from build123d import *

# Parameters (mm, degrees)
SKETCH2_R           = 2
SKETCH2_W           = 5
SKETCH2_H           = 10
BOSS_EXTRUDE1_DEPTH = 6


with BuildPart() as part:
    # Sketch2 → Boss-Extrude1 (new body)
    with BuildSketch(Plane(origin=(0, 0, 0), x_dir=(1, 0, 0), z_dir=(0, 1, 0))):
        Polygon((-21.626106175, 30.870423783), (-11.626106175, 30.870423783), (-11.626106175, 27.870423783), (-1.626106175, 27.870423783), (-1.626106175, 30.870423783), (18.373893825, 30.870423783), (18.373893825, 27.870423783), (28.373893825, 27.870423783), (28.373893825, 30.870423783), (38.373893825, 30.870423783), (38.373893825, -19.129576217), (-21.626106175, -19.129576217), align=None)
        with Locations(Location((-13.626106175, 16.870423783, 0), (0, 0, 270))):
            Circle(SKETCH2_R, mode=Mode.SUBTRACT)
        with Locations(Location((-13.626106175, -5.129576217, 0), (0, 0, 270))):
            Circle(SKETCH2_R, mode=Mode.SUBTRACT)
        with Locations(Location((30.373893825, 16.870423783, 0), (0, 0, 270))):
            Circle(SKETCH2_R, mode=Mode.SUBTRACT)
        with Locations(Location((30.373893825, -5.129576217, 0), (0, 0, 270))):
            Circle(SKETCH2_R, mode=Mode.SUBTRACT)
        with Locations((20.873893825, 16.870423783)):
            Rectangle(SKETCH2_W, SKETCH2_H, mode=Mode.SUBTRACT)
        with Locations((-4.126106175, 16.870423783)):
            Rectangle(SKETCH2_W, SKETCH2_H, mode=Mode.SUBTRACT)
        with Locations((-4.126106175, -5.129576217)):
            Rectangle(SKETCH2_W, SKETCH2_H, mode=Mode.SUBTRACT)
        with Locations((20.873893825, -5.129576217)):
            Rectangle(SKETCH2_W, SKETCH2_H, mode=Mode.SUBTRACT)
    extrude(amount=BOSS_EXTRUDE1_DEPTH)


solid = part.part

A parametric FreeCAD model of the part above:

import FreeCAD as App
import Part
import Sketcher

doc = App.newDocument("Part")
body = doc.addObject("PartDesign::Body", "Body")

# Sketch on XZ plane
sketch1 = body.newObject("Sketcher::SketchObject", "Sketch")
sketch1.AttachmentSupport = (doc.getObject("XZ_Plane"), [""])
sketch1.MapMode = "FlatFace"
sketch1.addGeometry([
    Part.LineSegment(App.Vector(-11.6, -30.9, 0), App.Vector(-21.6, -30.9, 0)),  # 0
    Part.LineSegment(App.Vector(-21.6, -30.9, 0), App.Vector(-21.6, 19.1, 0)),  # 1
    Part.LineSegment(App.Vector(-21.6, 19.1, 0), App.Vector(38.4, 19.1, 0)),  # 2
    Part.LineSegment(App.Vector(38.4, 19.1, 0), App.Vector(38.4, -30.9, 0)),  # 3
    Part.LineSegment(App.Vector(38.4, -30.9, 0), App.Vector(28.4, -30.9, 0)),  # 4
    Part.LineSegment(App.Vector(28.4, -30.9, 0), App.Vector(28.4, -27.9, 0)),  # 5
    Part.LineSegment(App.Vector(28.4, -27.9, 0), App.Vector(18.4, -27.9, 0)),  # 6
    Part.LineSegment(App.Vector(18.4, -27.9, 0), App.Vector(18.4, -30.9, 0)),  # 7
    Part.LineSegment(App.Vector(18.4, -30.9, 0), App.Vector(-1.6, -30.9, 0)),  # 8
    Part.LineSegment(App.Vector(-1.6, -30.9, 0), App.Vector(-1.6, -27.9, 0)),  # 9
    Part.LineSegment(App.Vector(-1.6, -27.9, 0), App.Vector(-11.6, -27.9, 0)),  # 10
    Part.LineSegment(App.Vector(-11.6, -27.9, 0), App.Vector(-11.6, -30.9, 0)),  # 11
    Part.Circle(App.Vector(30.4, 5.1, 0), App.Vector(0, 0, 1), 2),  # 12
    Part.LineSegment(App.Vector(18.4, 10.1, 0), App.Vector(18.4, 0.1, 0)),  # 13
    Part.LineSegment(App.Vector(18.4, 0.1, 0), App.Vector(23.4, 0.1, 0)),  # 14
    Part.LineSegment(App.Vector(23.4, 0.1, 0), App.Vector(23.4, 10.1, 0)),  # 15
    Part.LineSegment(App.Vector(23.4, 10.1, 0), App.Vector(18.4, 10.1, 0)),  # 16
    Part.LineSegment(App.Vector(-6.6, 10.1, 0), App.Vector(-6.6, 0.1, 0)),  # 17
    Part.LineSegment(App.Vector(-6.6, 0.1, 0), App.Vector(-1.6, 0.1, 0)),  # 18
    Part.LineSegment(App.Vector(-1.6, 0.1, 0), App.Vector(-1.6, 10.1, 0)),  # 19
    Part.LineSegment(App.Vector(-1.6, 10.1, 0), App.Vector(-6.6, 10.1, 0)),  # 20
    Part.Circle(App.Vector(-13.6, 5.1, 0), App.Vector(0, 0, 1), 2),  # 21
    Part.Circle(App.Vector(30.4, -16.9, 0), App.Vector(0, 0, 1), 2),  # 22
    Part.LineSegment(App.Vector(18.4, -11.9, 0), App.Vector(18.4, -21.9, 0)),  # 23
    Part.LineSegment(App.Vector(18.4, -21.9, 0), App.Vector(23.4, -21.9, 0)),  # 24
    Part.LineSegment(App.Vector(23.4, -21.9, 0), App.Vector(23.4, -11.9, 0)),  # 25
    Part.LineSegment(App.Vector(23.4, -11.9, 0), App.Vector(18.4, -11.9, 0)),  # 26
    Part.LineSegment(App.Vector(-6.6, -11.9, 0), App.Vector(-6.6, -21.9, 0)),  # 27
    Part.LineSegment(App.Vector(-6.6, -21.9, 0), App.Vector(-1.6, -21.9, 0)),  # 28
    Part.LineSegment(App.Vector(-1.6, -21.9, 0), App.Vector(-1.6, -11.9, 0)),  # 29
    Part.LineSegment(App.Vector(-1.6, -11.9, 0), App.Vector(-6.6, -11.9, 0)),  # 30
    Part.Circle(App.Vector(-13.6, -16.9, 0), App.Vector(0, 0, 1), 2),  # 31
], False)
sketch1.addConstraint([
    Sketcher.Constraint("Coincident", 0, 2, 1, 1),
    Sketcher.Constraint("Coincident", 1, 2, 2, 1),
    Sketcher.Constraint("Coincident", 2, 2, 3, 1),
    Sketcher.Constraint("Coincident", 3, 2, 4, 1),
    Sketcher.Constraint("Coincident", 4, 2, 5, 1),
    Sketcher.Constraint("Coincident", 5, 2, 6, 1),
    Sketcher.Constraint("Coincident", 6, 2, 7, 1),
    Sketcher.Constraint("Coincident", 7, 2, 8, 1),
    Sketcher.Constraint("Coincident", 8, 2, 9, 1),
    Sketcher.Constraint("Coincident", 9, 2, 10, 1),
    Sketcher.Constraint("Coincident", 10, 2, 11, 1),
    Sketcher.Constraint("Coincident", 11, 2, 0, 1),
    Sketcher.Constraint("Coincident", 13, 2, 14, 1),
    Sketcher.Constraint("Coincident", 14, 2, 15, 1),
    Sketcher.Constraint("Coincident", 15, 2, 16, 1),
    Sketcher.Constraint("Coincident", 16, 2, 13, 1),
    Sketcher.Constraint("Coincident", 17, 2, 18, 1),
    Sketcher.Constraint("Coincident", 18, 2, 19, 1),
    Sketcher.Constraint("Coincident", 19, 2, 20, 1),
    Sketcher.Constraint("Coincident", 20, 2, 17, 1),
    Sketcher.Constraint("Coincident", 23, 2, 24, 1),
    Sketcher.Constraint("Coincident", 24, 2, 25, 1),
    Sketcher.Constraint("Coincident", 25, 2, 26, 1),
    Sketcher.Constraint("Coincident", 26, 2, 23, 1),
    Sketcher.Constraint("Coincident", 27, 2, 28, 1),
    Sketcher.Constraint("Coincident", 28, 2, 29, 1),
    Sketcher.Constraint("Coincident", 29, 2, 30, 1),
    Sketcher.Constraint("Coincident", 30, 2, 27, 1),
    Sketcher.Constraint("Horizontal", 0),
    Sketcher.Constraint("Vertical", 1),
    Sketcher.Constraint("Horizontal", 2),
    Sketcher.Constraint("Vertical", 3),
    Sketcher.Constraint("Horizontal", 4),
    Sketcher.Constraint("Vertical", 5),
    Sketcher.Constraint("Horizontal", 6),
    Sketcher.Constraint("Vertical", 7),
    Sketcher.Constraint("Horizontal", 8),
    Sketcher.Constraint("Vertical", 9),
    Sketcher.Constraint("Horizontal", 10),
    Sketcher.Constraint("Vertical", 11),
    Sketcher.Constraint("Vertical", 13),
    Sketcher.Constraint("Horizontal", 14),
    Sketcher.Constraint("Vertical", 15),
    Sketcher.Constraint("Horizontal", 16),
    Sketcher.Constraint("Vertical", 17),
    Sketcher.Constraint("Horizontal", 18),
    Sketcher.Constraint("Vertical", 19),
    Sketcher.Constraint("Horizontal", 20),
    Sketcher.Constraint("Vertical", 23),
    Sketcher.Constraint("Horizontal", 24),
    Sketcher.Constraint("Vertical", 25),
    Sketcher.Constraint("Horizontal", 26),
    Sketcher.Constraint("Vertical", 27),
    Sketcher.Constraint("Horizontal", 28),
    Sketcher.Constraint("Vertical", 29),
    Sketcher.Constraint("Horizontal", 30),
    Sketcher.Constraint("Equal", 12, 21),
    Sketcher.Constraint("Equal", 21, 22),
    Sketcher.Constraint("Equal", 22, 31),
    Sketcher.Constraint("Horizontal", 12, 3, 21, 3),
    Sketcher.Constraint("Horizontal", 22, 3, 31, 3),
    Sketcher.Constraint("Horizontal", 0, 2, 3, 2),
    Sketcher.Constraint("Horizontal", 4, 2, 7, 2),
    Sketcher.Constraint("Horizontal", 6, 2, 9, 2),
    Sketcher.Constraint("Horizontal", 14, 2, 17, 2),
    Sketcher.Constraint("Horizontal", 16, 2, 19, 2),
    Sketcher.Constraint("Horizontal", 24, 2, 27, 2),
    Sketcher.Constraint("Horizontal", 26, 2, 29, 2),
    Sketcher.Constraint("Vertical", 12, 3, 22, 3),
    Sketcher.Constraint("Vertical", 21, 3, 31, 3),
    Sketcher.Constraint("Vertical", 7, 2, 13, 2),
    Sketcher.Constraint("Vertical", 9, 2, 18, 2),
    Sketcher.Constraint("Vertical", 16, 2, 23, 2),
    Sketcher.Constraint("Vertical", 15, 2, 24, 2),
    Sketcher.Constraint("Vertical", 20, 2, 27, 2),
    Sketcher.Constraint("Vertical", 19, 2, 28, 2),
    Sketcher.Constraint("Equal", 0, 4),
    Sketcher.Constraint("Equal", 4, 6),
    Sketcher.Constraint("Equal", 6, 10),
    Sketcher.Constraint("Equal", 16, 18),
    Sketcher.Constraint("Equal", 10, 13),
    Sketcher.Constraint("Equal", 19, 23),
    Sketcher.Constraint("Diameter", 12, 4.0),
    Sketcher.Constraint("DistanceX", 0, 2, 0, 1, 10.0),
    Sketcher.Constraint("DistanceX", 2, 1, 2, 2, 60.0),
    Sketcher.Constraint("DistanceX", 14, 1, 14, 2, 5.0),
    Sketcher.Constraint("DistanceY", 1, 1, 1, 2, 50.0),
    Sketcher.Constraint("DistanceY", 5, 1, 5, 2, 3.0),
    Sketcher.Constraint("DistanceX", 21, 3, 12, 3, 44.0),
    Sketcher.Constraint("DistanceY", 22, 3, 12, 3, 22.0),
    Sketcher.Constraint("DistanceX", 0, 2, 31, 3, 8.0),
    Sketcher.Constraint("DistanceY", 0, 2, 31, 3, 14.0),
    Sketcher.Constraint("DistanceY", 13, 2, 12, 3, 5.0),
    Sketcher.Constraint("DistanceY", 6, 2, 23, 2, 6.0),
    Sketcher.Constraint("DistanceX", -1, 1, 12, 3, 30.373894),
    Sketcher.Constraint("DistanceY", -1, 1, 12, 3, 5.129576),
])
pad1 = body.newObject("PartDesign::Pad", "Pad")
pad1.Profile = sketch1
pad1.Length = 6
pad1.Reversed = True

doc.recompute()
